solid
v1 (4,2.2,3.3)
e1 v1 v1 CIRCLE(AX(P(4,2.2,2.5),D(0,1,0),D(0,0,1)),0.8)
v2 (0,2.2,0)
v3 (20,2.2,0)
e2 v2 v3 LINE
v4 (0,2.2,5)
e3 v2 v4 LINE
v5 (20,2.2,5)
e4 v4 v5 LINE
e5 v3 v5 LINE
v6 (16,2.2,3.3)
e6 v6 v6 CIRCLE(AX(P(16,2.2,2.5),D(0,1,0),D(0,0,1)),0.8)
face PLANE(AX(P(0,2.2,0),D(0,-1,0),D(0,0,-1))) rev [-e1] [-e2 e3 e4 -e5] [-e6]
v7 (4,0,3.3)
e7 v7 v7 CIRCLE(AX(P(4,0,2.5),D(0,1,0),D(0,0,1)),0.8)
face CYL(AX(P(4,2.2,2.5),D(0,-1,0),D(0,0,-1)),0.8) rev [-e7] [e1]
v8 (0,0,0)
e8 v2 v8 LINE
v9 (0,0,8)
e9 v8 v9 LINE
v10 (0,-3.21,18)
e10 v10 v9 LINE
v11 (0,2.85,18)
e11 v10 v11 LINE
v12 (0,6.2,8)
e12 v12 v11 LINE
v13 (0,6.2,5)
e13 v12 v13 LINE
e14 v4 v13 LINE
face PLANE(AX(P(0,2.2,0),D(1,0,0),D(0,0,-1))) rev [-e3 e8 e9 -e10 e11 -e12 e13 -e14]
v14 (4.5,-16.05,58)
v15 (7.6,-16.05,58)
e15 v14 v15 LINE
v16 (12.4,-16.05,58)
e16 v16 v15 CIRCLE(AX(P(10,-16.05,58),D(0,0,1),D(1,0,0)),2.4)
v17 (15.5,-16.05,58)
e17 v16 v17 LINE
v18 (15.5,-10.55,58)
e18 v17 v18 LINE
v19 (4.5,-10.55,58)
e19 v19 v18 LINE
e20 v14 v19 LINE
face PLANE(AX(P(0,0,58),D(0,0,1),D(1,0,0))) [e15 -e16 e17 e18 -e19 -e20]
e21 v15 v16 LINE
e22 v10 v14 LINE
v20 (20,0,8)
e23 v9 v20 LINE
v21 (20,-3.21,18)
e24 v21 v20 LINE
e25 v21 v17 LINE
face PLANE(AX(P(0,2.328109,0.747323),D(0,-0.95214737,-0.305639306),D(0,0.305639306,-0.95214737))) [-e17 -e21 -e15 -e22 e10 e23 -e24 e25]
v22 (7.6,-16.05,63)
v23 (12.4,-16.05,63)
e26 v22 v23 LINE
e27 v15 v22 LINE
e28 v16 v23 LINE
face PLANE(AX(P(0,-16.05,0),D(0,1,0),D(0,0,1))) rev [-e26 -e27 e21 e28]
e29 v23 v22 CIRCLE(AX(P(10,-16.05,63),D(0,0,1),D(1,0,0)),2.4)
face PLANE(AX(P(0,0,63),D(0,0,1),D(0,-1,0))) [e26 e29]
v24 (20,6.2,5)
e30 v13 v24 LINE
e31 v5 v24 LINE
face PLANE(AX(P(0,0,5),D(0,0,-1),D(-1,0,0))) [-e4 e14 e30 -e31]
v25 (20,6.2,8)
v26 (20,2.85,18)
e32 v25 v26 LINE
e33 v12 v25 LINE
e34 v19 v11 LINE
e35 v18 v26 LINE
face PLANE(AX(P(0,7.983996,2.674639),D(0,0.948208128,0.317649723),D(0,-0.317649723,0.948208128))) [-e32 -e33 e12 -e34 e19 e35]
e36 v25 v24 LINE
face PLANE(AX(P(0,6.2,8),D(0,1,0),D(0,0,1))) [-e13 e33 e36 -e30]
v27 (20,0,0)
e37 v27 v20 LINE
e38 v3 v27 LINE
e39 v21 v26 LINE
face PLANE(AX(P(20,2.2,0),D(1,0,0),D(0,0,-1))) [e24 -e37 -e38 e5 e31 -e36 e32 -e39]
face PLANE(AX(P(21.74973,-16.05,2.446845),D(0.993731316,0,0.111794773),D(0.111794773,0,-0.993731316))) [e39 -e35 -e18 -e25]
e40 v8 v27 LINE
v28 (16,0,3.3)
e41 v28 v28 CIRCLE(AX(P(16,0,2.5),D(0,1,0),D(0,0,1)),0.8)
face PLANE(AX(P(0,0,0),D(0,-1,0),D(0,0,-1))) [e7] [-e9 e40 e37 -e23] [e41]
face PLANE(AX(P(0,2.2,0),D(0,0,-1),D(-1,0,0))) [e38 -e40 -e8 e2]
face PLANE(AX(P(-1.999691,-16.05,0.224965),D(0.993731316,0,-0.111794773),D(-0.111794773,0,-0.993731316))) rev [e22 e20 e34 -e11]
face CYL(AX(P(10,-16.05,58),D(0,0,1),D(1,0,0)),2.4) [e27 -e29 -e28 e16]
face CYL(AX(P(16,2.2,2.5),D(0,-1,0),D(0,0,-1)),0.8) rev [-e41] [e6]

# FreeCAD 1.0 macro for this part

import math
import FreeCAD as App
import Part
import Sketcher
from FreeCAD import Vector


def add_polygon(sketch, points):
    """Adds a closed chain of lines whose ends are joined by coincident constraints."""
    first, n = sketch.GeometryCount, len(points)
    for a, b in zip(points, points[1:] + points[:1]):
        sketch.addGeometry(Part.LineSegment(App.Vector(*a, 0), App.Vector(*b, 0)), False)
    for i in range(n):
        sketch.addConstraint(Sketcher.Constraint("Coincident", first + i, 2, first + (i + 1) % n, 1))

doc = App.newDocument("Part")
body = doc.addObject("PartDesign::Body", "Body")

# Sketch on XZ plane
sketch1 = body.newObject("Sketcher::SketchObject", "Sketch")
sketch1.AttachmentSupport = (doc.getObject("XZ_Plane"), [""])
sketch1.MapMode = "FlatFace"
add_polygon(sketch1, [(0, 0), (0, 5), (20, 5), (20, 0)])  # lines 0-3
sketch1.addGeometry(Part.Circle(Vector(4, 2.5, 0), Vector(0, 0, 1), 0.8), False)  # 4
sketch1.addGeometry(Part.Circle(Vector(16, 2.5, 0), Vector(0, 0, 1), 0.8), False)  # 5
sketch1.addConstraint([
    Sketcher.Constraint("Vertical", 0),
    Sketcher.Constraint("Horizontal", 1),
    Sketcher.Constraint("Vertical", 2),
    Sketcher.Constraint("Horizontal", 3),
    Sketcher.Constraint("Coincident", 3, 2, -1, 1),
    Sketcher.Constraint("Equal", 4, 5),
    Sketcher.Constraint("Horizontal", 4, 3, 5, 3),
    Sketcher.Constraint("Diameter", 4, 1.6),
    Sketcher.Constraint("DistanceX", 1, 1, 1, 2, 20.0),
    Sketcher.Constraint("DistanceY", 0, 1, 0, 2, 5.0),
    Sketcher.Constraint("DistanceX", -1, 1, 4, 3, 4.0),
    Sketcher.Constraint("DistanceX", -1, 1, 5, 3, 16.0),
    Sketcher.Constraint("DistanceY", -1, 1, 4, 3, 2.5),
])
pad1 = body.newObject("PartDesign::Pad", "Pad")
pad1.Profile = sketch1
pad1.Length = 2.2
pad1.Reversed = True

# Sketch on XY plane
sketch2 = body.newObject("Sketcher::SketchObject", "Sketch001")
sketch2.AttachmentSupport = (doc.getObject("XY_Plane"), [""])
sketch2.MapMode = "FlatFace"
sketch2.AttachmentOffset = App.Placement(Vector(0, 0, 5), App.Rotation())
add_polygon(sketch2, [(0, 6), (0, 0), (20, 0), (20, 6)])  # lines 0-3
sketch2.addConstraint([
    Sketcher.Constraint("Vertical", 0),
    Sketcher.Constraint("Horizontal", 1),
    Sketcher.Constraint("Vertical", 2),
    Sketcher.Constraint("Horizontal", 3),
    Sketcher.Constraint("Coincident", 0, 2, -1, 1),
    Sketcher.Constraint("DistanceX", 1, 1, 1, 2, 20.0),
    Sketcher.Constraint("DistanceY", 0, 2, 0, 1, 6.2),
])
pad2 = body.newObject("PartDesign::Pad", "Pad001")
pad2.Profile = sketch2
pad2.Length = 3

# Sketch on YZ plane
sketch3 = body.newObject("Sketcher::SketchObject", "Sketch002")
sketch3.AttachmentSupport = (doc.getObject("YZ_Plane"), [""])
sketch3.MapMode = "FlatFace"
sketch3.AttachmentOffset = App.Placement(Vector(0, 0, 20), App.Rotation())
add_polygon(sketch3, [(-16, 58), (0, 8), (6, 8), (-11, 58), (-11, 63), (-16, 63)])  # lines 0-5
sketch3.addConstraint([
    Sketcher.Constraint("Horizontal", 1),
    Sketcher.Constraint("Vertical", 3),
    Sketcher.Constraint("Horizontal", 4),
    Sketcher.Constraint("Vertical", 5),
    Sketcher.Constraint("PointOnObject", 0, 2, -2),
    Sketcher.Constraint("Horizontal", 2, 2, 5, 2),
    Sketcher.Constraint("DistanceY", 3, 1, 3, 2, 5.0),
    Sketcher.Constraint("DistanceX", 1, 1, 1, 2, 6.2),
    Sketcher.Constraint("DistanceX", 4, 2, 4, 1, 5.5),
    Sketcher.Constraint("DistanceY", -1, 1, 0, 2, 8.0),
    Sketcher.Constraint("DistanceY", -1, 1, 2, 2, 58.0),
    Sketcher.Constraint("DistanceX", 2, 2, -1, 1, 10.55),
])
pad3 = body.newObject("PartDesign::Pad", "Pad002")
pad3.Profile = sketch3
pad3.Length = 20
pad3.Reversed = True

# Sketch on XZ plane
sketch4 = body.newObject("Sketcher::SketchObject", "Sketch003")
sketch4.AttachmentSupport = (doc.getObject("XZ_Plane"), [""])
sketch4.MapMode = "FlatFace"
sketch4.AttachmentOffset = App.Placement(Vector(0, 0, -6.2), App.Rotation())
add_polygon(sketch4, [(4.5, 58), (0, 18), (0, 63), (4.5, 63)])  # lines 0-3
add_polygon(sketch4, [(20, 18), (15.5, 58), (15.5, 63), (20, 63)])  # lines 4-7
sketch4.addConstraint([
    Sketcher.Constraint("Vertical", 1),
    Sketcher.Constraint("Horizontal", 2),
    Sketcher.Constraint("Vertical", 3),
    Sketcher.Constraint("Vertical", 5),
    Sketcher.Constraint("Horizontal", 6),
    Sketcher.Constraint("Vertical", 7),
    Sketcher.Constraint("PointOnObject", 0, 2, -2),
    Sketcher.Constraint("Horizontal", 3, 2, 4, 2),
    Sketcher.Constraint("Horizontal", 2, 2, 5, 2),
    Sketcher.Constraint("Horizontal", 0, 2, 7, 2),
    Sketcher.Constraint("Equal", 2, 6),
    Sketcher.Constraint("DistanceY", 1, 1, 1, 2, 45.0),
    Sketcher.Constraint("DistanceY", 3, 2, 3, 1, 5.0),
    Sketcher.Constraint("DistanceX", 2, 1, 2, 2, 4.5),
    Sketcher.Constraint("DistanceY", -1, 1, 0, 2, 18.0),
    Sketcher.Constraint("DistanceX", -1, 1, 6, 2, 20.0),
])
pocket1 = body.newObject("PartDesign::Pocket", "Pocket")
pocket1.Profile = sketch4
pocket1.Type = "ThroughAll"
pocket1.Reversed = True

# Sketch on XY plane
sketch5 = body.newObject("Sketcher::SketchObject", "Sketch004")
sketch5.AttachmentSupport = (doc.getObject("XY_Plane"), [""])
sketch5.MapMode = "FlatFace"
sketch5.AttachmentOffset = App.Placement(Vector(0, 0, 63), App.Rotation())
sketch5.addGeometry([
    Part.LineSegment(Vector(15.5, -10.6, 0), Vector(4.5, -10.6, 0)),  # 0
    Part.LineSegment(Vector(4.5, -10.6, 0), Vector(4.5, -16.1, 0)),  # 1
    Part.LineSegment(Vector(4.5, -16.1, 0), Vector(7.6, -16.1, 0)),  # 2
    Part.ArcOfCircle(Part.Circle(Vector(10, -16.1, 0), Vector(0, 0, 1), 2.4), math.radians(0), math.radians(180)),  # 3
    Part.LineSegment(Vector(12.4, -16.1, 0), Vector(15.5, -16.1, 0)),  # 4
    Part.LineSegment(Vector(15.5, -16.1, 0), Vector(15.5, -10.6, 0)),  # 5
], False)
sketch5.addConstraint([
    Sketcher.Constraint("Coincident", 0, 2, 1, 1),
    Sketcher.Constraint("Coincident", 1, 2, 2, 1),
    Sketcher.Constraint("Coincident", 2, 2, 3, 2),
    Sketcher.Constraint("Coincident", 3, 1, 4, 1),
    Sketcher.Constraint("Coincident", 4, 2, 5, 1),
    Sketcher.Constraint("Coincident", 5, 2, 0, 1),
    Sketcher.Constraint("Horizontal", 0),
    Sketcher.Constraint("Vertical", 1),
    Sketcher.Constraint("Horizontal", 2),
    Sketcher.Constraint("Horizontal", 4),
    Sketcher.Constraint("Vertical", 5),
    Sketcher.Constraint("Horizontal", 3, 3, 1, 2),
    Sketcher.Constraint("Horizontal", 2, 2, 3, 1),
    Sketcher.Constraint("Equal", 2, 4),
    Sketcher.Constraint("Radius", 3, 2.4),
    Sketcher.Constraint("DistanceX", 0, 2, 0, 1, 11.0),
    Sketcher.Constraint("DistanceY", 1, 2, 1, 1, 5.5),
    Sketcher.Constraint("DistanceX", -1, 1, 3, 3, 10.0),
    Sketcher.Constraint("DistanceY", 3, 3, -1, 1, 16.05),
])
pocket2 = body.newObject("PartDesign::Pocket", "Pocket001")
pocket2.Profile = sketch5
pocket2.Length = 5

doc.recompute()
